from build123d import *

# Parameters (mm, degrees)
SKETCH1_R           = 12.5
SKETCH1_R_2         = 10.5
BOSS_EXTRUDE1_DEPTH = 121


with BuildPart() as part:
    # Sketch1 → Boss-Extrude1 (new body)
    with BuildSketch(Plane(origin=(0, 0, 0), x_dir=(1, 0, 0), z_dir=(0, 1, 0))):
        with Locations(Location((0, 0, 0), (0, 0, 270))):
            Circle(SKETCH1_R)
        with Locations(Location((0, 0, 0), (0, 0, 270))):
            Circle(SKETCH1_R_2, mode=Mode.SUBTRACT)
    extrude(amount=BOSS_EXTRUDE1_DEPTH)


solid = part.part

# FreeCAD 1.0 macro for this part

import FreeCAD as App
import Part
import Sketcher

doc = App.newDocument("Part")
body = doc.addObject("PartDesign::Body", "Body")

# Sketch on XZ plane
sketch1 = doc.addObject("Sketcher::SketchObject", "Sketch")
body.addObject(sketch1)
sketch1.AttachmentSupport = (doc.XZ_Plane, [""])
sketch1.MapMode = "FlatFace"
sketch1.addGeometry([
    Part.Circle(App.Vector(0, 0, 0), App.Vector(0, 0, 1), 12),
    Part.Circle(App.Vector(0, 0, 0), App.Vector(0, 0, 1), 10),
], False)
sketch1.addConstraint([
    Sketcher.Constraint("Coincident", 0, 3, -1, 1),
    Sketcher.Constraint("Coincident", 1, 3, -1, 1),
    Sketcher.Constraint("Diameter", 0, 25.0),
    Sketcher.Constraint("Diameter", 1, 21.0),
])
pad1 = doc.addObject("PartDesign::Pad", "Pad")
body.addObject(pad1)
pad1.Profile = sketch1
pad1.Length = 121
pad1.Reversed = True

doc.recompute()
